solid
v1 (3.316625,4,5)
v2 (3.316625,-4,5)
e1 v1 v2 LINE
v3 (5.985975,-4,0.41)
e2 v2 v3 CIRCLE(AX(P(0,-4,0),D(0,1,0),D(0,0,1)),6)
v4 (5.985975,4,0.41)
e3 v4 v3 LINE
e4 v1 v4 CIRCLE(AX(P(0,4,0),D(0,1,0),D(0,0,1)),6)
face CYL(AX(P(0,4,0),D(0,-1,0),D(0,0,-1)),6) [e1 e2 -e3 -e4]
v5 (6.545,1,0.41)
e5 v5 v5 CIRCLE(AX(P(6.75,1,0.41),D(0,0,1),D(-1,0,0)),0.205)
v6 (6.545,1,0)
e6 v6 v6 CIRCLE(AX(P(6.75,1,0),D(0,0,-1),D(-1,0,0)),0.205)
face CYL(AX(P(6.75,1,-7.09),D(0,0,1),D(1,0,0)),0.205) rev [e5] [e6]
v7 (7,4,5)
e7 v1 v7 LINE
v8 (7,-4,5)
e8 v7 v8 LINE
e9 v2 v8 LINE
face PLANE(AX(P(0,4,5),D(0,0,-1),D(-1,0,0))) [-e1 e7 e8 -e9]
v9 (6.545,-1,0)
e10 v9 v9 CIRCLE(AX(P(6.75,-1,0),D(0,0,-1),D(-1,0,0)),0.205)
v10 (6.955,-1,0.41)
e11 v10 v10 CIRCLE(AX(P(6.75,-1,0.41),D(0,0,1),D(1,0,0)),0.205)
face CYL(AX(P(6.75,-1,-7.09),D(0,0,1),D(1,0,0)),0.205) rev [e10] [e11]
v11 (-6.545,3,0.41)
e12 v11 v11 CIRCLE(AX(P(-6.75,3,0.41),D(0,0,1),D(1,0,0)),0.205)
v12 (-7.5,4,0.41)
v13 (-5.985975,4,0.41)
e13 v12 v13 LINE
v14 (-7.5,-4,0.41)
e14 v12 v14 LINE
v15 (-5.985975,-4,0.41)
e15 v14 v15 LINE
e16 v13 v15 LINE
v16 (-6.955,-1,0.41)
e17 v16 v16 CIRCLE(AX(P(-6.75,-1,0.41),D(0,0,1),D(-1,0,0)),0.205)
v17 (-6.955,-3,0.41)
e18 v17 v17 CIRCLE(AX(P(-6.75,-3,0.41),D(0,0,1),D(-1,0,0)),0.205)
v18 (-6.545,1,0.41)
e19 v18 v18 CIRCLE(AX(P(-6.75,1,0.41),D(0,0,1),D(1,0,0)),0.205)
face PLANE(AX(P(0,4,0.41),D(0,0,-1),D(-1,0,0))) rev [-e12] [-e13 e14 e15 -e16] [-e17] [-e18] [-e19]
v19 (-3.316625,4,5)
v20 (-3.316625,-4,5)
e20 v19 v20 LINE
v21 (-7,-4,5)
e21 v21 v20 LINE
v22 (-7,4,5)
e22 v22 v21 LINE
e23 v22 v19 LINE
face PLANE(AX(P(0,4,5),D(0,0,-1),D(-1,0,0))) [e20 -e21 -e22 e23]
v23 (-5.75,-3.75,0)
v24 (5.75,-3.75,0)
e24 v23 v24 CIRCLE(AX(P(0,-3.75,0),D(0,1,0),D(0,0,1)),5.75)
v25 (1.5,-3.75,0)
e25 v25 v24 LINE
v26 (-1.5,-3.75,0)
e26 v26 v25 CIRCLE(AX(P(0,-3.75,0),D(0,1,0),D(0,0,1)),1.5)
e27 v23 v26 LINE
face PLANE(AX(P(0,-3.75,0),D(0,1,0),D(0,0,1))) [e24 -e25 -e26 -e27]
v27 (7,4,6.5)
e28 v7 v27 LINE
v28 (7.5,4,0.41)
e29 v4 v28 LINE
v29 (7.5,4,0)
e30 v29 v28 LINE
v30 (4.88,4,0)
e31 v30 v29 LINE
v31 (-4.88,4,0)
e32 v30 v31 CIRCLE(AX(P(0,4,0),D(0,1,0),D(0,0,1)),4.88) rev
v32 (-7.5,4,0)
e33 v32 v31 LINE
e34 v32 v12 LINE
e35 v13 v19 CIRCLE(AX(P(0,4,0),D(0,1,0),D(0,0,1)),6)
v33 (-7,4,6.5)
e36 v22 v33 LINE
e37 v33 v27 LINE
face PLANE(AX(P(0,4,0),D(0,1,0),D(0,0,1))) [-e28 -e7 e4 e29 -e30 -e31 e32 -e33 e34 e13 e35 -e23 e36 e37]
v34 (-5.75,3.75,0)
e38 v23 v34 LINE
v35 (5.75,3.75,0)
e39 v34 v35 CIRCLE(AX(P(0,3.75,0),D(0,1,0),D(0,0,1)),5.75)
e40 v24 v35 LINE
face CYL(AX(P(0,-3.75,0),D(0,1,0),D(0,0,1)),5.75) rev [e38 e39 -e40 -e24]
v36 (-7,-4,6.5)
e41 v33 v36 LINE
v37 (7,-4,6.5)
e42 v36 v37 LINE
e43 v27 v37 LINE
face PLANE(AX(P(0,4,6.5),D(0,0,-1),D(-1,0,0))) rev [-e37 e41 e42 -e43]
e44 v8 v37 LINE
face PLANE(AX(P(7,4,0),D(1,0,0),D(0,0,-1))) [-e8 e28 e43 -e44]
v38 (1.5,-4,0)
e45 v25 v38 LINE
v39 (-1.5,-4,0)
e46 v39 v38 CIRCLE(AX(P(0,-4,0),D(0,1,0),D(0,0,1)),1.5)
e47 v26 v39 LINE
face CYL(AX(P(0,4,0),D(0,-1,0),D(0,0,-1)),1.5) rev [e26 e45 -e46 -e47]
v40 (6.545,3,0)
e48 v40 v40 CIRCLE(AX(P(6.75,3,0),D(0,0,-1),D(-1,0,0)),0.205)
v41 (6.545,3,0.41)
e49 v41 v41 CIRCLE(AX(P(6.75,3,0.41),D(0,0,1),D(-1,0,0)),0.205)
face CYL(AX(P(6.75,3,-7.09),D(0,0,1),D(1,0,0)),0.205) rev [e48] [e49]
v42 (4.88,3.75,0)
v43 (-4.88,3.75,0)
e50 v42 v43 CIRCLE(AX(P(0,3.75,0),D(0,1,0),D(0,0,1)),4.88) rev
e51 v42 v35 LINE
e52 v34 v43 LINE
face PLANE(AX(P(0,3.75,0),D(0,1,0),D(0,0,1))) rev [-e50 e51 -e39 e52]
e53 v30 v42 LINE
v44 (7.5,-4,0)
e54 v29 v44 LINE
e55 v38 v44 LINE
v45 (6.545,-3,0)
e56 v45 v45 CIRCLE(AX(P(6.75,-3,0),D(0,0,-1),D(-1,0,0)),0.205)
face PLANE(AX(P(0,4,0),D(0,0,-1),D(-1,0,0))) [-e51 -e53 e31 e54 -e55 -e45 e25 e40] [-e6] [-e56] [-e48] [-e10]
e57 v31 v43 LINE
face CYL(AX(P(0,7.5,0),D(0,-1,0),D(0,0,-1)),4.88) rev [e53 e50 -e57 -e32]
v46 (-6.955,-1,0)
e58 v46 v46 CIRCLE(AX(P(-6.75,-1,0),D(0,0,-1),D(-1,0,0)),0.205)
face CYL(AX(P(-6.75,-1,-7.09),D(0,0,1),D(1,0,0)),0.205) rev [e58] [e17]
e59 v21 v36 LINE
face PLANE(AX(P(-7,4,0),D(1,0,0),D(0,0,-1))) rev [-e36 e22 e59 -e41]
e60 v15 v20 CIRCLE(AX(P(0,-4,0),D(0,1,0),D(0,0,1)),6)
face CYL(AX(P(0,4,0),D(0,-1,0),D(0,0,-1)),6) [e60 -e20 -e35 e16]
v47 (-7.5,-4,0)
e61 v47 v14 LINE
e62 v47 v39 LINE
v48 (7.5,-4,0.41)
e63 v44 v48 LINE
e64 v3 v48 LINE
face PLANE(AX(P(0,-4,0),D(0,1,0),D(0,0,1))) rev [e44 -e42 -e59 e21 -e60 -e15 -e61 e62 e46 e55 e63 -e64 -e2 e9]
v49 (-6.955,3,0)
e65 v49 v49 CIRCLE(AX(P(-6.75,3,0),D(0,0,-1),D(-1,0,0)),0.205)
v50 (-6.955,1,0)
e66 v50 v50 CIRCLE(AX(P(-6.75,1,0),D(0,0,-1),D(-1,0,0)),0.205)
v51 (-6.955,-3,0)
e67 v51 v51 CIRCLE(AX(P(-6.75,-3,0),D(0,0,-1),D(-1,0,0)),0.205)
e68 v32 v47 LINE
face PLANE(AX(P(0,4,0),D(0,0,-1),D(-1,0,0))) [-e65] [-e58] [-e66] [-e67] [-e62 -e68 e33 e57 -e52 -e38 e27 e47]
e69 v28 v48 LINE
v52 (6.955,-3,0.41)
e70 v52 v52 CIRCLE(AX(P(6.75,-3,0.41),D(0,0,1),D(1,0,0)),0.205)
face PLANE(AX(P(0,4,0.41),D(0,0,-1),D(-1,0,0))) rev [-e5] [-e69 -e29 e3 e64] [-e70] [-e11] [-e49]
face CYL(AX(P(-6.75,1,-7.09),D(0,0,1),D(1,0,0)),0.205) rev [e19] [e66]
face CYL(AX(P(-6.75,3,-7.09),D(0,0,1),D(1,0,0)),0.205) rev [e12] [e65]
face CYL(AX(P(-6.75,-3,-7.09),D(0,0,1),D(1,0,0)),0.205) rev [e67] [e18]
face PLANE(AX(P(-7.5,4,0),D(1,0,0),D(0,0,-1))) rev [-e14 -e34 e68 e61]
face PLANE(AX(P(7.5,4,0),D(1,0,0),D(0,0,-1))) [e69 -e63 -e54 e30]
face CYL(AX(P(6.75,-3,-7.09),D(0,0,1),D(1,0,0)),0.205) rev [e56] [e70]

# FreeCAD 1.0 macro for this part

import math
import FreeCAD as App
import Part
import Sketcher

V = App.Vector

doc = App.newDocument("Part")
body = doc.addObject("PartDesign::Body", "Body")

# Sketch on XZ plane
sketch1 = body.newObject("Sketcher::SketchObject", "Sketch")
sketch1.AttachmentSupport = (doc.getObject("XZ_Plane"), [""])
sketch1.MapMode = "FlatFace"
sketch1.addGeometry([
    Part.LineSegment(V(-1.5, 0, 0), V(-7.5, 0, 0)),  # 0
    Part.LineSegment(V(-7.5, 0, 0), V(-7.5, 0.41, 0)),  # 1
    Part.LineSegment(V(-7.5, 0.41, 0), V(-5.99, 0.41, 0)),  # 2
    Part.ArcOfCircle(Part.Circle(V(0, 0, 0), V(0, 0, 1), 6), math.radians(124), math.radians(176)),  # 3
    Part.LineSegment(V(-3.32, 5, 0), V(-7, 5, 0)),  # 4
    Part.LineSegment(V(-7, 5, 0), V(-7, 6.5, 0)),  # 5
    Part.LineSegment(V(-7, 6.5, 0), V(7, 6.5, 0)),  # 6
    Part.LineSegment(V(7, 6.5, 0), V(7, 5, 0)),  # 7
    Part.LineSegment(V(7, 5, 0), V(3.32, 5, 0)),  # 8
    Part.ArcOfCircle(Part.Circle(V(0, 0, 0), V(0, 0, 1), 6), math.radians(4), math.radians(56)),  # 9
    Part.LineSegment(V(5.99, 0.41, 0), V(7.5, 0.41, 0)),  # 10
    Part.LineSegment(V(7.5, 0.41, 0), V(7.5, 0, 0)),  # 11
    Part.LineSegment(V(7.5, 0, 0), V(1.5, 0, 0)),  # 12
    Part.ArcOfCircle(Part.Circle(V(0, 0, 0), V(0, 0, 1), 1.5), math.radians(0), math.radians(180)),  # 13
], False)
sketch1.addConstraint([
    Sketcher.Constraint("Coincident", 0, 2, 1, 1),
    Sketcher.Constraint("Coincident", 1, 2, 2, 1),
    Sketcher.Constraint("Coincident", 2, 2, 3, 2),
    Sketcher.Constraint("Coincident", 3, 1, 4, 1),
    Sketcher.Constraint("Coincident", 4, 2, 5, 1),
    Sketcher.Constraint("Coincident", 5, 2, 6, 1),
    Sketcher.Constraint("Coincident", 6, 2, 7, 1),
    Sketcher.Constraint("Coincident", 7, 2, 8, 1),
    Sketcher.Constraint("Coincident", 8, 2, 9, 2),
    Sketcher.Constraint("Coincident", 9, 1, 10, 1),
    Sketcher.Constraint("Coincident", 10, 2, 11, 1),
    Sketcher.Constraint("Coincident", 11, 2, 12, 1),
    Sketcher.Constraint("Coincident", 12, 2, 13, 1),
    Sketcher.Constraint("Coincident", 13, 2, 0, 1),
    Sketcher.Constraint("Horizontal", 0),
    Sketcher.Constraint("Vertical", 1),
    Sketcher.Constraint("Horizontal", 2),
    Sketcher.Constraint("Horizontal", 4),
    Sketcher.Constraint("Vertical", 5),
    Sketcher.Constraint("Horizontal", 6),
    Sketcher.Constraint("Vertical", 7),
    Sketcher.Constraint("Horizontal", 8),
    Sketcher.Constraint("Horizontal", 10),
    Sketcher.Constraint("Vertical", 11),
    Sketcher.Constraint("Horizontal", 12),
    Sketcher.Constraint("Coincident", 3, 3, -1, 1),
    Sketcher.Constraint("Coincident", 9, 3, -1, 1),
    Sketcher.Constraint("Coincident", 13, 3, -1, 1),
    Sketcher.Constraint("Equal", 3, 9),
    Sketcher.Constraint("Symmetric", 0, 2, 11, 2, -1, 1),
    Sketcher.Constraint("Symmetric", 4, 2, 7, 2, -2),
    Sketcher.Constraint("PointOnObject", 0, 2, -1),
    Sketcher.Constraint("Horizontal", 2, 2, 9, 1),
    Sketcher.Constraint("Radius", 3, 6.0),
    Sketcher.Constraint("Radius", 13, 1.5),
    Sketcher.Constraint("DistanceX", 0, 2, 0, 1, 6.0),
    Sketcher.Constraint("DistanceX", 6, 1, 6, 2, 14.0),
    Sketcher.Constraint("DistanceY", 5, 1, 5, 2, 1.5),
    Sketcher.Constraint("DistanceY", -1, 1, 3, 1, 5.0),
    Sketcher.Constraint("DistanceY", 1, 1, 1, 2, 0.41),
])
pad1 = body.newObject("PartDesign::Pad", "Pad")
pad1.Profile = sketch1
pad1.Length = 8
pad1.Midplane = True

# Sketch on XZ plane
sketch2 = body.newObject("Sketcher::SketchObject", "Sketch001")
sketch2.AttachmentSupport = (doc.getObject("XZ_Plane"), [""])
sketch2.MapMode = "FlatFace"
sketch2.addGeometry([
    Part.LineSegment(V(-1.5, 0, 0), V(-5.8, 0, 0)),
    Part.ArcOfCircle(Part.Circle(V(0, 0, 0), V(0, 0, 1), 5.8), math.radians(0), math.radians(180)),
    Part.LineSegment(V(5.8, 0, 0), V(1.5, 0, 0)),
    Part.ArcOfCircle(Part.Circle(V(0, 0, 0), V(0, 0, 1), 1.5), math.radians(0), math.radians(180)),
], False)
sketch2.addConstraint([
    Sketcher.Constraint("Coincident", 0, 2, 1, 2),
    Sketcher.Constraint("Coincident", 1, 1, 2, 1),
    Sketcher.Constraint("Coincident", 2, 2, 3, 1),
    Sketcher.Constraint("Coincident", 3, 2, 0, 1),
    Sketcher.Constraint("Horizontal", 0),
    Sketcher.Constraint("Horizontal", 2),
    Sketcher.Constraint("Coincident", 1, 3, -1, 1),
    Sketcher.Constraint("Coincident", 3, 3, -1, 1),
    Sketcher.Constraint("PointOnObject", 0, 2, -1),
    Sketcher.Constraint("PointOnObject", 1, 1, -1),
    Sketcher.Constraint("Radius", 3, 1.5),
    Sketcher.Constraint("Radius", 1, 5.75),
])
pocket1 = body.newObject("PartDesign::Pocket", "Pocket")
pocket1.Profile = sketch2
pocket1.Length = 7.5
pocket1.Midplane = True

# Sketch on XZ plane
sketch3 = body.newObject("Sketcher::SketchObject", "Sketch002")
sketch3.AttachmentSupport = (doc.getObject("XZ_Plane"), [""])
sketch3.MapMode = "FlatFace"
sketch3.AttachmentOffset = App.Placement(V(0, 0, -7.5), App.Rotation())
sketch3.addGeometry([
    Part.LineSegment(V(-1.5, 0, 0), V(-4.9, 0, 0)),
    Part.ArcOfCircle(Part.Circle(V(0, 0, 0), V(0, 0, 1), 4.9), math.radians(0), math.radians(180)),
    Part.LineSegment(V(4.9, 0, 0), V(1.5, 0, 0)),
    Part.ArcOfCircle(Part.Circle(V(0, 0, 0), V(0, 0, 1), 1.5), math.radians(0), math.radians(180)),
], False)
sketch3.addConstraint([
    Sketcher.Constraint("Coincident", 0, 2, 1, 2),
    Sketcher.Constraint("Coincident", 1, 1, 2, 1),
    Sketcher.Constraint("Coincident", 2, 2, 3, 1),
    Sketcher.Constraint("Coincident", 3, 2, 0, 1),
    Sketcher.Constraint("Horizontal", 0),
    Sketcher.Constraint("Horizontal", 2),
    Sketcher.Constraint("Coincident", 1, 3, -1, 1),
    Sketcher.Constraint("Coincident", 3, 3, -1, 1),
    Sketcher.Constraint("PointOnObject", 0, 2, -1),
    Sketcher.Constraint("PointOnObject", 1, 1, -1),
    Sketcher.Constraint("Radius", 3, 1.5),
    Sketcher.Constraint("Radius", 1, 4.88),
])
pocket2 = body.newObject("PartDesign::Pocket", "Pocket001")
pocket2.Profile = sketch3
pocket2.Length = 7.5
pocket2.Reversed = True

# Sketch on XY plane
sketch4 = body.newObject("Sketcher::SketchObject", "Sketch003")
sketch4.AttachmentSupport = (doc.getObject("XY_Plane"), [""])
sketch4.MapMode = "FlatFace"
sketch4.AttachmentOffset = App.Placement(V(0, 0, 0.41), App.Rotation())
sketch4.addGeometry([
    Part.Circle(V(-6.75, 3, 0), V(0, 0, 1), 0.2),  # 0
    Part.Circle(V(-6.75, 1, 0), V(0, 0, 1), 0.2),  # 1
    Part.Circle(V(-6.75, -1, 0), V(0, 0, 1), 0.2),  # 2
    Part.Circle(V(-6.75, -3, 0), V(0, 0, 1), 0.2),  # 3
    Part.Circle(V(6.75, -3, 0), V(0, 0, 1), 0.2),  # 4
    Part.Circle(V(6.75, -1, 0), V(0, 0, 1), 0.2),  # 5
    Part.Circle(V(6.75, 1, 0), V(0, 0, 1), 0.2),  # 6
    Part.Circle(V(6.75, 3, 0), V(0, 0, 1), 0.2),  # 7
], False)
sketch4.addConstraint([
    Sketcher.Constraint("Equal", 0, 1),
    Sketcher.Constraint("Equal", 1, 2),
    Sketcher.Constraint("Equal", 2, 3),
    Sketcher.Constraint("Equal", 3, 4),
    Sketcher.Constraint("Equal", 4, 5),
    Sketcher.Constraint("Equal", 5, 6),
    Sketcher.Constraint("Equal", 6, 7),
    Sketcher.Constraint("Symmetric", 0, 3, 4, 3, -1, 1),
    Sketcher.Constraint("Symmetric", 1, 3, 5, 3, -1, 1),
    Sketcher.Constraint("Symmetric", 2, 3, 6, 3, -1, 1),
    Sketcher.Constraint("Symmetric", 3, 3, 7, 3, -1, 1),
    Sketcher.Constraint("Symmetric", 3, 3, 4, 3, -2),
    Sketcher.Constraint("Symmetric", 2, 3, 5, 3, -2),
    Sketcher.Constraint("Vertical", 0, 3, 1, 3),
    Sketcher.Constraint("Diameter", 0, 0.41),
    Sketcher.Constraint("DistanceY", -1, 1, 0, 3, 3.0),
    Sketcher.Constraint("DistanceY", -1, 1, 1, 3, 1.0),
    Sketcher.Constraint("DistanceX", 3, 3, 4, 3, 13.5),
])
pocket3 = body.newObject("PartDesign::Pocket", "Pocket002")
pocket3.Profile = sketch4
pocket3.Length = 7.5

doc.recompute()
